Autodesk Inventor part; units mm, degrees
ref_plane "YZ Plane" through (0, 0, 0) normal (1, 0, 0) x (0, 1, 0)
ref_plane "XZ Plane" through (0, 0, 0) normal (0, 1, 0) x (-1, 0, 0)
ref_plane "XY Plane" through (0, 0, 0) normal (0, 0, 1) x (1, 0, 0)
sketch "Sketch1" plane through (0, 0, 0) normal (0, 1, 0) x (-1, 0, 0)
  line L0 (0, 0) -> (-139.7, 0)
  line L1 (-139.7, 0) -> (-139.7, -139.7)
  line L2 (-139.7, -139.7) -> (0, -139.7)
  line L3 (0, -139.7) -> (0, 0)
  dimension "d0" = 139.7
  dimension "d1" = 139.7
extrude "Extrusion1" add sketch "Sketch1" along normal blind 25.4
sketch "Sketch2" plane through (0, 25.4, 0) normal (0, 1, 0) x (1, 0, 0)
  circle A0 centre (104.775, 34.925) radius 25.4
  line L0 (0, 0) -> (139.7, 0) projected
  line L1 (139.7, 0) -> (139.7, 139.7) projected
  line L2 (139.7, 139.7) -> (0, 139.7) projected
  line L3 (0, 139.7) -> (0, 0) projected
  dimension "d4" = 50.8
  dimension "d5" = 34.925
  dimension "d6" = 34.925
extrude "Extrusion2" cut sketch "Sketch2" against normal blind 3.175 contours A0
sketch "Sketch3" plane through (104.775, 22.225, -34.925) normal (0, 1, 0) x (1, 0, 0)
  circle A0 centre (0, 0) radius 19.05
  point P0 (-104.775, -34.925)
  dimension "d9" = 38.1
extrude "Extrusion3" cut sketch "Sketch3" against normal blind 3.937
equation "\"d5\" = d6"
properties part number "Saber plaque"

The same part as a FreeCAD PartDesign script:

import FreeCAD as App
import Part
import Sketcher
Q = App.Units.Quantity

doc = App.newDocument("Part")
params = doc.addObject("Spreadsheet::Sheet", "Params")
for row, (alias, value) in enumerate([
    ("sketch1_width", "5.5 in"),
    ("pad1_length", "1 in"),
    ("sketch2_diameter", "2 in"),
    ("pocket1_length", "0.125 in"),
    ("sketch3_diameter", "1.5 in"),
    ("pocket2_length", "0.155 in"),
], start=1):
    params.set(f"A{row}", alias)
    params.set(f"B{row}", "=" + value)
    params.setAlias(f"B{row}", alias)

body = doc.addObject("PartDesign::Body", "Body")

sketch1 = body.newObject("Sketcher::SketchObject", "Sketch")
sketch1.AttachmentSupport = (doc.getObject("XZ_Plane"), [""])
sketch1.MapMode = "FlatFace"
sketch1.addGeometry([
    Part.LineSegment(App.Vector(0, -139.7, 0), App.Vector(0, 0, 0)),
    Part.LineSegment(App.Vector(0, 0, 0), App.Vector(139.7, 0, 0)),
    Part.LineSegment(App.Vector(139.7, 0, 0), App.Vector(139.7, -139.7, 0)),
    Part.LineSegment(App.Vector(139.7, -139.7, 0), App.Vector(0, -139.7, 0)),
], False)
sketch1.addConstraint([
    Sketcher.Constraint("Coincident", 0, 2, 1, 1),
    Sketcher.Constraint("Coincident", 1, 2, 2, 1),
    Sketcher.Constraint("Coincident", 2, 2, 3, 1),
    Sketcher.Constraint("Coincident", 3, 2, 0, 1),
    Sketcher.Constraint("Vertical", 0),
    Sketcher.Constraint("Horizontal", 1),
    Sketcher.Constraint("Vertical", 2),
    Sketcher.Constraint("Horizontal", 3),
    Sketcher.Constraint("Coincident", 0, 2, -1, 1),
    Sketcher.Constraint("Equal", 3, 0),
    Sketcher.Constraint("DistanceX", 1, 1, 1, 2, Q("5.5 in")),
])
sketch1.setExpression("Constraints[10]", "Params.sketch1_width")
pad1 = body.newObject("PartDesign::Pad", "Pad")
pad1.Profile = sketch1
pad1.setExpression("Length", "Params.pad1_length")
pad1.Reversed = True

sketch2 = body.newObject("Sketcher::SketchObject", "Sketch001")
sketch2.AttachmentSupport = (doc.getObject("XZ_Plane"), [""])
sketch2.MapMode = "FlatFace"
sketch2.AttachmentOffset = App.Placement(App.Vector(0, 0, -1 * 25.4), App.Rotation())
sketch2.addGeometry(Part.Circle(App.Vector(104.775, -34.925, 0), App.Vector(0, 0, 1), 25.4), False)
sketch2.addConstraint([
    Sketcher.Constraint("Diameter", 0, Q("2 in")),
    Sketcher.Constraint("DistanceY", 0, 3, -1, 1, Q("1.375 in")),
    Sketcher.Constraint("DistanceX", -1, 1, 0, 3, Q("4.125 in")),
])
sketch2.setExpression("Constraints[0]", "Params.sketch2_diameter")
pocket1 = body.newObject("PartDesign::Pocket", "Pocket")
pocket1.Profile = sketch2
pocket1.setExpression("Length", "Params.pocket1_length")
pocket1.Reversed = True

sketch3 = body.newObject("Sketcher::SketchObject", "Sketch002")
sketch3.AttachmentSupport = (doc.getObject("XZ_Plane"), [""])
sketch3.MapMode = "FlatFace"
sketch3.AttachmentOffset = App.Placement(App.Vector(0, 0, -0.875 * 25.4), App.Rotation())
sketch3.addGeometry(Part.Circle(App.Vector(104.775, -34.925, 0), App.Vector(0, 0, 1), 19.05), False)
sketch3.addConstraint([
    Sketcher.Constraint("Diameter", 0, Q("1.5 in")),
    Sketcher.Constraint("DistanceX", -1, 1, 0, 3, Q("4.125 in")),
    Sketcher.Constraint("DistanceY", 0, 3, -1, 1, Q("1.375 in")),
])
sketch3.setExpression("Constraints[0]", "Params.sketch3_diameter")
pocket2 = body.newObject("PartDesign::Pocket", "Pocket001")
pocket2.Profile = sketch3
pocket2.setExpression("Length", "Params.pocket2_length")
pocket2.Reversed = True

doc.recompute()
